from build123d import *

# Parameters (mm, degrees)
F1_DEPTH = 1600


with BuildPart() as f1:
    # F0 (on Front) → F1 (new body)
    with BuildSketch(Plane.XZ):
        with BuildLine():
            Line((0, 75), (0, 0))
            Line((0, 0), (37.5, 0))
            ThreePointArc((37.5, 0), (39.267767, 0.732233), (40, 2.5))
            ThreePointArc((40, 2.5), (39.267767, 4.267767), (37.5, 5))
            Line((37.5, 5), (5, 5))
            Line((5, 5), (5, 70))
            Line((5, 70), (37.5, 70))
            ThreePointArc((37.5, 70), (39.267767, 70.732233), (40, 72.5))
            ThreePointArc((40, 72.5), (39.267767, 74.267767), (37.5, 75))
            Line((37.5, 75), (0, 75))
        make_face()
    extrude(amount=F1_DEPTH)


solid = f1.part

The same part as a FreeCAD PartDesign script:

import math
import FreeCAD as App
import Part
import Sketcher
from FreeCAD import Vector
Q = App.Units.Quantity

doc = App.newDocument("Part")
body = doc.addObject("PartDesign::Body", "Body")

sketch1 = body.newObject("Sketcher::SketchObject", "Sketch")
sketch1.AttachmentSupport = (doc.getObject("XZ_Plane"), [""])
sketch1.MapMode = "FlatFace"
sketch1.addGeometry(Part.LineSegment(Vector(0, 75, 0), Vector(0, 0, 0)), False)
sketch1.addGeometry(Part.LineSegment(Vector(0, 0, 0), Vector(37.5, 0, 0)), False)
sketch1.addGeometry(Part.ArcOfCircle(Part.Circle(Vector(37.5, 2.5, 0), Vector(0, 0, 1), 2.5), math.radians(-90.000004), math.radians(0.000004)), False)
sketch1.addGeometry(Part.ArcOfCircle(Part.Circle(Vector(37.5, 2.5, 0), Vector(0, 0, 1), 2.5), math.radians(-0.000004), math.radians(90.000004)), False)
sketch1.addGeometry(Part.LineSegment(Vector(37.5, 5, 0), Vector(5, 5, 0)), False)
sketch1.addGeometry(Part.LineSegment(Vector(5, 5, 0), Vector(5, 70, 0)), False)
sketch1.addGeometry(Part.LineSegment(Vector(5, 70, 0), Vector(37.5, 70, 0)), False)
sketch1.addGeometry(Part.ArcOfCircle(Part.Circle(Vector(37.5, 72.5, 0), Vector(0, 0, 1), 2.5), math.radians(-90.000004), math.radians(0.000004)), False)
sketch1.addGeometry(Part.ArcOfCircle(Part.Circle(Vector(37.5, 72.5, 0), Vector(0, 0, 1), 2.5), math.radians(-0.000004), math.radians(90.000004)), False)
sketch1.addGeometry(Part.LineSegment(Vector(37.5, 75, 0), Vector(0, 75, 0)), False)
sketch1.addConstraint(Sketcher.Constraint("Coincident", 0, 2, 1, 1))
sketch1.addConstraint(Sketcher.Constraint("Tangent", 1, 2, 2, 1))
sketch1.addConstraint(Sketcher.Constraint("Tangent", 2, 2, 3, 1))
sketch1.addConstraint(Sketcher.Constraint("Tangent", 3, 2, 4, 1))
sketch1.addConstraint(Sketcher.Constraint("Coincident", 4, 2, 5, 1))
sketch1.addConstraint(Sketcher.Constraint("Coincident", 5, 2, 6, 1))
sketch1.addConstraint(Sketcher.Constraint("Tangent", 6, 2, 7, 1))
sketch1.addConstraint(Sketcher.Constraint("Tangent", 7, 2, 8, 1))
sketch1.addConstraint(Sketcher.Constraint("Tangent", 8, 2, 9, 1))
sketch1.addConstraint(Sketcher.Constraint("Coincident", 9, 2, 0, 1))
sketch1.addConstraint(Sketcher.Constraint("Vertical", 0))
sketch1.addConstraint(Sketcher.Constraint("Horizontal", 1))
sketch1.addConstraint(Sketcher.Constraint("Horizontal", 4))
sketch1.addConstraint(Sketcher.Constraint("Vertical", 5))
sketch1.addConstraint(Sketcher.Constraint("Horizontal", 6))
sketch1.addConstraint(Sketcher.Constraint("Horizontal", 9))
sketch1.addConstraint(Sketcher.Constraint("Coincident", 0, 2, -1, 1))
sketch1.addConstraint(Sketcher.Constraint("Equal", 2, 3))
sketch1.addConstraint(Sketcher.Constraint("Equal", 3, 7))
sketch1.addConstraint(Sketcher.Constraint("Equal", 7, 8))
sketch1.addConstraint(Sketcher.Constraint("Horizontal", 3, 3, 2, 2))
sketch1.addConstraint(Sketcher.Constraint("Horizontal", 8, 3, 7, 2))
sketch1.addConstraint(Sketcher.Constraint("Vertical", 3, 3, 7, 3))
sketch1.addConstraint(Sketcher.Constraint("Radius", 2, Q("2.5 mm")))
sketch1.addConstraint(Sketcher.Constraint("DistanceY", 0, 2, 0, 1, Q("75 mm")))
sketch1.addConstraint(Sketcher.Constraint("DistanceX", 1, 1, 1, 2, Q("37.5 mm")))
sketch1.addConstraint(Sketcher.Constraint("DistanceX", 4, 2, 4, 1, Q("32.5 mm")))
pad1 = body.newObject("PartDesign::Pad", "Pad")
pad1.Profile = sketch1
pad1.Length = 1600

doc.recompute()
